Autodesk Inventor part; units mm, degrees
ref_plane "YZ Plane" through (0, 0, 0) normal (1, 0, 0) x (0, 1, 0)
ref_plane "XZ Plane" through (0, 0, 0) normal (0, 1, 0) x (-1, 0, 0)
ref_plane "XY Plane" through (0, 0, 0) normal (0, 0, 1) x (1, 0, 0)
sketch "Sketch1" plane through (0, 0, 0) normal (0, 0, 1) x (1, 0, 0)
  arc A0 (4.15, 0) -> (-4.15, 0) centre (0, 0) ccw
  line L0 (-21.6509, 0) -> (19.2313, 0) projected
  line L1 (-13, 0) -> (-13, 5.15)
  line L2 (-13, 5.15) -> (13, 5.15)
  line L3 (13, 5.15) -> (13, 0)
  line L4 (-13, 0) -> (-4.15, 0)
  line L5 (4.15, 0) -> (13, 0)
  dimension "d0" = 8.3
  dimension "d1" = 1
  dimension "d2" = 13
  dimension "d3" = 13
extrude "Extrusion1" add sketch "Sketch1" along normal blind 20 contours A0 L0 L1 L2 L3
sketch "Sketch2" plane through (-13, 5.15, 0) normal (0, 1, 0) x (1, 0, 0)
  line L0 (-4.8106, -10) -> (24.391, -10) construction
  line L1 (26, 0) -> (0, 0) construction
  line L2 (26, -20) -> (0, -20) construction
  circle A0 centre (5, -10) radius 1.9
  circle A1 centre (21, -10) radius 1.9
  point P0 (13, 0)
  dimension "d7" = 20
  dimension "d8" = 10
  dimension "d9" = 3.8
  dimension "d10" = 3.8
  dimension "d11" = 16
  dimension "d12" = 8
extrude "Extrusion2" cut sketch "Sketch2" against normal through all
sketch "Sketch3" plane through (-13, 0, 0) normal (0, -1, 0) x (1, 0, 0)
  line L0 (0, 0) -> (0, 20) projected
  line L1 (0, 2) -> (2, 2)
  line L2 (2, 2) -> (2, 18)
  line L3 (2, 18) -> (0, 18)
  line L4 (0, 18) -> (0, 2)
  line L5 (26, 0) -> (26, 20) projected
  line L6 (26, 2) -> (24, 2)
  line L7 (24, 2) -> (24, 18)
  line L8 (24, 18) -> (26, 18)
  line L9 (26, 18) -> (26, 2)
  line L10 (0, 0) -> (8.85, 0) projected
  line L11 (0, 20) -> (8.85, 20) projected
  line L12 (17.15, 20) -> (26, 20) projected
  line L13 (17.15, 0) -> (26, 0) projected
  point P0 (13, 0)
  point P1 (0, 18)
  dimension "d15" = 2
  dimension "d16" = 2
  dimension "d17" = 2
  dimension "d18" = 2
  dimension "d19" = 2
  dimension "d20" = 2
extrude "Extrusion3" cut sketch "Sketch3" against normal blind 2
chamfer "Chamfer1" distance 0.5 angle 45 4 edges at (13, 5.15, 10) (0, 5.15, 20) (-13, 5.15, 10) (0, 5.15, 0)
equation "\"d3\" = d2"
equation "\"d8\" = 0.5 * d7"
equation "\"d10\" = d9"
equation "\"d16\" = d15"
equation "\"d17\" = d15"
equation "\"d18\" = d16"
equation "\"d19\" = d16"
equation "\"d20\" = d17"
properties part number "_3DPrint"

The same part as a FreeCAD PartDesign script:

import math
import FreeCAD as App
import Part
import Sketcher


def edges_at(feature, points):
    """Names of the edges that pass closest to the given points."""
    edges = feature.Shape.Edges
    near = lambda p: min(range(len(edges)), key=lambda i: edges[i].distToShape(Part.Vertex(*p))[0])
    return sorted({f"Edge{near(p) + 1}" for p in points})


def add_polygon(sketch, points):
    """Adds a closed chain of lines whose ends are joined by coincident constraints."""
    first, n = sketch.GeometryCount, len(points)
    for a, b in zip(points, points[1:] + points[:1]):
        sketch.addGeometry(Part.LineSegment(App.Vector(*a, 0), App.Vector(*b, 0)), False)
    for i in range(n):
        sketch.addConstraint(Sketcher.Constraint("Coincident", first + i, 2, first + (i + 1) % n, 1))

doc = App.newDocument("Part")
body = doc.addObject("PartDesign::Body", "Body")

# Sketch on XY plane
sketch1 = body.newObject("Sketcher::SketchObject", "Sketch")
sketch1.AttachmentSupport = (doc.getObject("XY_Plane"), [""])
sketch1.MapMode = "FlatFace"
sketch1.addGeometry([
    Part.ArcOfCircle(Part.Circle(App.Vector(0, 0, 0), App.Vector(0, 0, 1), 4.2), math.radians(0), math.radians(180)),  # 0
    Part.LineSegment(App.Vector(4.2, 0, 0), App.Vector(13, 0, 0)),  # 1
    Part.LineSegment(App.Vector(13, 0, 0), App.Vector(13, 5.2, 0)),  # 2
    Part.LineSegment(App.Vector(13, 5.2, 0), App.Vector(-13, 5.2, 0)),  # 3
    Part.LineSegment(App.Vector(-13, 5.2, 0), App.Vector(-13, 0, 0)),  # 4
    Part.LineSegment(App.Vector(-13, 0, 0), App.Vector(-4.2, 0, 0)),  # 5
], False)
sketch1.addConstraint([
    Sketcher.Constraint("Coincident", 0, 1, 1, 1),
    Sketcher.Constraint("Coincident", 1, 2, 2, 1),
    Sketcher.Constraint("Coincident", 2, 2, 3, 1),
    Sketcher.Constraint("Coincident", 3, 2, 4, 1),
    Sketcher.Constraint("Coincident", 4, 2, 5, 1),
    Sketcher.Constraint("Coincident", 5, 2, 0, 2),
    Sketcher.Constraint("Horizontal", 1),
    Sketcher.Constraint("Vertical", 2),
    Sketcher.Constraint("Horizontal", 3),
    Sketcher.Constraint("Vertical", 4),
    Sketcher.Constraint("Horizontal", 5),
    Sketcher.Constraint("Coincident", 0, 3, -1, 1),
    Sketcher.Constraint("Symmetric", 1, 2, 4, 2, -1, 1),
    Sketcher.Constraint("PointOnObject", 0, 1, -1),
    Sketcher.Constraint("Radius", 0, 4.15),
    Sketcher.Constraint("DistanceX", -1, 1, 1, 2, 13.0),
    Sketcher.Constraint("DistanceY", 2, 1, 2, 2, 5.15),
])
pad1 = body.newObject("PartDesign::Pad", "Pad")
pad1.Profile = sketch1
pad1.Length = 20

# Sketch on XZ plane
sketch2 = body.newObject("Sketcher::SketchObject", "Sketch001")
sketch2.AttachmentSupport = (doc.getObject("XZ_Plane"), [""])
sketch2.MapMode = "FlatFace"
sketch2.AttachmentOffset = App.Placement(App.Vector(0, 0, -5.15), App.Rotation())
sketch2.addGeometry([
    Part.Circle(App.Vector(-8, 10, 0), App.Vector(0, 0, 1), 1.9),
    Part.Circle(App.Vector(8, 10, 0), App.Vector(0, 0, 1), 1.9),
], False)
sketch2.addConstraint([
    Sketcher.Constraint("Equal", 0, 1),
    Sketcher.Constraint("Symmetric", 0, 3, 1, 3, -2),
    Sketcher.Constraint("Diameter", 0, 3.8),
    Sketcher.Constraint("DistanceX", 0, 3, -1, 1, 8.0),
    Sketcher.Constraint("DistanceY", -1, 1, 0, 3, 10.0),
])
pocket1 = body.newObject("PartDesign::Pocket", "Pocket")
pocket1.Profile = sketch2
pocket1.Type = "ThroughAll"
pocket1.Reversed = True

# Sketch on XZ plane
sketch3 = body.newObject("Sketcher::SketchObject", "Sketch002")
sketch3.AttachmentSupport = (doc.getObject("XZ_Plane"), [""])
sketch3.MapMode = "FlatFace"
add_polygon(sketch3, [(-13, 18), (-13, 2), (-11, 2), (-11, 18)])  # lines 0-3
add_polygon(sketch3, [(11, 2), (13, 2), (13, 18), (11, 18)])  # lines 4-7
sketch3.addConstraint([
    Sketcher.Constraint("Vertical", 0),
    Sketcher.Constraint("Horizontal", 1),
    Sketcher.Constraint("Vertical", 2),
    Sketcher.Constraint("Horizontal", 3),
    Sketcher.Constraint("Horizontal", 4),
    Sketcher.Constraint("Vertical", 5),
    Sketcher.Constraint("Horizontal", 6),
    Sketcher.Constraint("Vertical", 7),
    Sketcher.Constraint("Symmetric", 0, 2, 4, 2, -2),
    Sketcher.Constraint("Symmetric", 2, 2, 6, 2, -2),
    Sketcher.Constraint("DistanceX", 1, 1, 1, 2, 2.0),
    Sketcher.Constraint("DistanceY", -1, 1, 0, 2, 2.0),
    Sketcher.Constraint("DistanceY", 0, 2, 0, 1, 16.0),
    Sketcher.Constraint("DistanceX", 0, 2, -1, 1, 13.0),
])
pocket2 = body.newObject("PartDesign::Pocket", "Pocket001")
pocket2.Profile = sketch3
pocket2.Length = 2
doc.recompute()

chamfer = body.newObject("PartDesign::Chamfer", "Chamfer")
chamfer.Base = (pocket2, edges_at(pocket2, [
    (13, 5.15, 10),
    (0, 5.15, 20),
    (-13, 5.15, 10),
    (0, 5.15, 0),
]))
chamfer.Size = 0.5

doc.recompute()
